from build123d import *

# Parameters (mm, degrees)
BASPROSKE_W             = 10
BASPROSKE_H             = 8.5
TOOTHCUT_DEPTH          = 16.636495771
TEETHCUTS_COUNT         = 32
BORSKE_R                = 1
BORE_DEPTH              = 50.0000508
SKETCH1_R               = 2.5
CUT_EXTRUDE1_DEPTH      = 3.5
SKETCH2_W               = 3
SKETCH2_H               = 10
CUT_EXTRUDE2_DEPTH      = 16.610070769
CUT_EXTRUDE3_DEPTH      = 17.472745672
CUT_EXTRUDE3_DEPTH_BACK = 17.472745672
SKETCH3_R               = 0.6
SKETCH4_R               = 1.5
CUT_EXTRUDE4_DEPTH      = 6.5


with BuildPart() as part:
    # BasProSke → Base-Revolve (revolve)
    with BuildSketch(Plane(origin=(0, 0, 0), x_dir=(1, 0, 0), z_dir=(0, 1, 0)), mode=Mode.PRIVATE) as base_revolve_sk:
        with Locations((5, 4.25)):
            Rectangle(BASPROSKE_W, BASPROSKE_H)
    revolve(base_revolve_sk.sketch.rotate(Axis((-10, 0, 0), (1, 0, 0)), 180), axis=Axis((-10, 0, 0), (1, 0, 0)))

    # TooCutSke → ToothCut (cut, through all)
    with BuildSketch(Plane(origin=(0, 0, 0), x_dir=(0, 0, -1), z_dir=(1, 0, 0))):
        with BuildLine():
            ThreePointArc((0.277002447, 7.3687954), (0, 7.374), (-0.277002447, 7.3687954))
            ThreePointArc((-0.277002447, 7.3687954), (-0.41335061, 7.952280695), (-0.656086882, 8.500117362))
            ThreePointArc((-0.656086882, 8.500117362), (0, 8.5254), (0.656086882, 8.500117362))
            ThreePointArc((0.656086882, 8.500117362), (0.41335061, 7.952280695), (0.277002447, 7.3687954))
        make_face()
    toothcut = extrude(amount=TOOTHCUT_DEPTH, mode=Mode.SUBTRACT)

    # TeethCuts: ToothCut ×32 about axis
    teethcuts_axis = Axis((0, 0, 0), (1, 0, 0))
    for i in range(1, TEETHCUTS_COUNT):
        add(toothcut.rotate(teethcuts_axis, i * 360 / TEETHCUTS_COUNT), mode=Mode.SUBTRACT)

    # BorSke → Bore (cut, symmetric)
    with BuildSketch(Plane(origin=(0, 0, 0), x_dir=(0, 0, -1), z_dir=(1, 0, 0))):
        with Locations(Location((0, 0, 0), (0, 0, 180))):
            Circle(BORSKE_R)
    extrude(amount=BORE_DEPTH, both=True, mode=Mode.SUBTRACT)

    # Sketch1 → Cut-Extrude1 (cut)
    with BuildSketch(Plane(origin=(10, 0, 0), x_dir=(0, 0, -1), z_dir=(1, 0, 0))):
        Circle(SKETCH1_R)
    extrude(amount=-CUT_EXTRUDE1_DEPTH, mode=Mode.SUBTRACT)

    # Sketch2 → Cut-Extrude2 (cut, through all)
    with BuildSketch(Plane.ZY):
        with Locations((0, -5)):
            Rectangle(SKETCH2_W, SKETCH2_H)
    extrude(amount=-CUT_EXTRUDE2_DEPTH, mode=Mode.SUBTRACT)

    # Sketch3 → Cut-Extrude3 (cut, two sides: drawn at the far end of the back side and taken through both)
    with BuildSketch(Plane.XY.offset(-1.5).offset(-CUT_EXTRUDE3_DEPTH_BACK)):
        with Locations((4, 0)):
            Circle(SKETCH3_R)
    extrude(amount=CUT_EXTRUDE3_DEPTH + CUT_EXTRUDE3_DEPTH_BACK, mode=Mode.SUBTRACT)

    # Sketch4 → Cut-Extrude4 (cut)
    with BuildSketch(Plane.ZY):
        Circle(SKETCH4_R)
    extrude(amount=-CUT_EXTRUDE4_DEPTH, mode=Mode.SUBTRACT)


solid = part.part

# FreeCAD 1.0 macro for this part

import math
import FreeCAD as App
import Part
import Sketcher

V = App.Vector

doc = App.newDocument("Part")
body = doc.addObject("PartDesign::Body", "Body")

sketch1 = doc.addObject("Sketcher::SketchObject", "Sketch")
body.addObject(sketch1)
sketch1.AttachmentSupport = (doc.XZ_Plane, [""])
sketch1.MapMode = "FlatFace"
sketch1.addGeometry([
    Part.LineSegment(V(0, -8, 0), V(0, 0, 0)),
    Part.LineSegment(V(0, 0, 0), V(10, 0, 0)),
    Part.LineSegment(V(10, 0, 0), V(10, -8, 0)),
    Part.LineSegment(V(10, -8, 0), V(0, -8, 0)),
], False)
sketch1.addConstraint([
    Sketcher.Constraint("Coincident", 0, 2, 1, 1),
    Sketcher.Constraint("Coincident", 1, 2, 2, 1),
    Sketcher.Constraint("Coincident", 2, 2, 3, 1),
    Sketcher.Constraint("Coincident", 3, 2, 0, 1),
    Sketcher.Constraint("Vertical", 0),
    Sketcher.Constraint("Horizontal", 1),
    Sketcher.Constraint("Vertical", 2),
    Sketcher.Constraint("Horizontal", 3),
    Sketcher.Constraint("Coincident", 0, 2, -1, 1),
    Sketcher.Constraint("DistanceX", 1, 1, 1, 2, 10.0),
    Sketcher.Constraint("DistanceY", 0, 1, 0, 2, 8.5),
])
revolution = doc.addObject("PartDesign::Revolution", "Revolution")
body.addObject(revolution)
revolution.Profile = sketch1
revolution.ReferenceAxis = (sketch1, ["H_Axis"])
revolution.Angle = 360

sketch2 = doc.addObject("Sketcher::SketchObject", "Sketch001")
body.addObject(sketch2)
sketch2.AttachmentSupport = (doc.YZ_Plane, [""])
sketch2.MapMode = "FlatFace"
sketch2.addGeometry([
    Part.ArcOfCircle(Part.Circle(V(0, 0, 0), V(0, 0, 1), 7.4), math.radians(-2.15), math.radians(2.15)),
    Part.ArcOfCircle(Part.Circle(V(6.9, -3.4, 0), V(0, 0, 1), 3.2), math.radians(61), math.radians(82)),
    Part.ArcOfCircle(Part.Circle(V(0, 0, 0), V(0, 0, 1), 8.5), math.radians(-4.41), math.radians(4.41)),
    Part.ArcOfCircle(Part.Circle(V(6.9, 3.4, 0), V(0, 0, 1), 3.2), math.radians(-82), math.radians(-61)),
], False)
sketch2.addConstraint([
    Sketcher.Constraint("Coincident", 0, 1, 1, 2),
    Sketcher.Constraint("Coincident", 1, 1, 2, 1),
    Sketcher.Constraint("Coincident", 2, 2, 3, 2),
    Sketcher.Constraint("Coincident", 3, 1, 0, 2),
    Sketcher.Constraint("Coincident", 0, 3, -1, 1),
    Sketcher.Constraint("Coincident", 2, 3, -1, 1),
    Sketcher.Constraint("Equal", 1, 3),
    Sketcher.Constraint("Symmetric", 1, 3, 3, 3, -1),
    Sketcher.Constraint("Radius", 1, 3.2),
    Sketcher.Constraint("Radius", 0, 7.374),
    Sketcher.Constraint("Radius", 2, 8.5254),
    Sketcher.Constraint("DistanceX", -1, 1, 1, 3, 6.935581),
    Sketcher.Constraint("DistanceX", 0, 1, 1, 1, 1.131322),
])
pocket1 = doc.addObject("PartDesign::Pocket", "Pocket")
body.addObject(pocket1)
pocket1.Profile = sketch2
pocket1.Type = "ThroughAll"
pocket1.Reversed = True
doc.recompute()

polarpattern = doc.addObject("PartDesign::PolarPattern", "PolarPattern")
body.addObject(polarpattern)
polarpattern.Originals = [pocket1]
polarpattern.Axis = (doc.X_Axis, [""])
polarpattern.Angle = 360
polarpattern.Occurrences = 32
body.Tip = polarpattern

sketch3 = doc.addObject("Sketcher::SketchObject", "Sketch002")
body.addObject(sketch3)
sketch3.AttachmentSupport = (doc.YZ_Plane, [""])
sketch3.MapMode = "FlatFace"
sketch3.addGeometry(Part.Circle(V(0, 0, 0), V(0, 0, 1), 1), False)
sketch3.addConstraint([
    Sketcher.Constraint("Coincident", 0, 3, -1, 1),
    Sketcher.Constraint("Diameter", 0, 2.0),
])
pocket2 = doc.addObject("PartDesign::Pocket", "Pocket001")
body.addObject(pocket2)
pocket2.Profile = sketch3
pocket2.Length = 100.000102
pocket2.Midplane = True

sketch4 = doc.addObject("Sketcher::SketchObject", "Sketch003")
body.addObject(sketch4)
sketch4.AttachmentSupport = (doc.YZ_Plane, [""])
sketch4.MapMode = "FlatFace"
sketch4.AttachmentOffset = App.Placement(V(0, 0, 10), App.Rotation())
sketch4.addGeometry(Part.Circle(V(0, 0, 0), V(0, 0, 1), 2.5), False)
sketch4.addConstraint([
    Sketcher.Constraint("Coincident", 0, 3, -1, 1),
    Sketcher.Constraint("Diameter", 0, 5.0),
])
pocket3 = doc.addObject("PartDesign::Pocket", "Pocket002")
body.addObject(pocket3)
pocket3.Profile = sketch4
pocket3.Length = 3.5

sketch5 = doc.addObject("Sketcher::SketchObject", "Sketch004")
body.addObject(sketch5)
sketch5.AttachmentSupport = (doc.YZ_Plane, [""])
sketch5.MapMode = "FlatFace"
sketch5.addGeometry([
    Part.LineSegment(V(0, -1.5, 0), V(-10, -1.5, 0)),
    Part.LineSegment(V(-10, -1.5, 0), V(-10, 1.5, 0)),
    Part.LineSegment(V(-10, 1.5, 0), V(0, 1.5, 0)),
    Part.LineSegment(V(0, 1.5, 0), V(0, -1.5, 0)),
], False)
sketch5.addConstraint([
    Sketcher.Constraint("Coincident", 0, 2, 1, 1),
    Sketcher.Constraint("Coincident", 1, 2, 2, 1),
    Sketcher.Constraint("Coincident", 2, 2, 3, 1),
    Sketcher.Constraint("Coincident", 3, 2, 0, 1),
    Sketcher.Constraint("Horizontal", 0),
    Sketcher.Constraint("Vertical", 1),
    Sketcher.Constraint("Horizontal", 2),
    Sketcher.Constraint("Vertical", 3),
    Sketcher.Constraint("Symmetric", 2, 2, 3, 2, -1, 1),
    Sketcher.Constraint("DistanceX", 0, 2, 0, 1, 10.0),
    Sketcher.Constraint("DistanceY", 1, 1, 1, 2, 3.0),
])
pocket4 = doc.addObject("PartDesign::Pocket", "Pocket003")
body.addObject(pocket4)
pocket4.Profile = sketch5
pocket4.Type = "ThroughAll"
pocket4.Reversed = True

sketch6 = doc.addObject("Sketcher::SketchObject", "Sketch005")
body.addObject(sketch6)
sketch6.AttachmentSupport = (doc.XY_Plane, [""])
sketch6.MapMode = "FlatFace"
sketch6.AttachmentOffset = App.Placement(V(0, 0, -1.5), App.Rotation())
sketch6.addGeometry(Part.Circle(V(4, 0, 0), V(0, 0, 1), 0.6), False)
sketch6.addConstraint([
    Sketcher.Constraint("PointOnObject", 0, 3, -1),
    Sketcher.Constraint("Diameter", 0, 1.2),
    Sketcher.Constraint("DistanceX", -1, 1, 0, 3, 4.0),
])
pocket5 = doc.addObject("PartDesign::Pocket", "Pocket004")
body.addObject(pocket5)
pocket5.Profile = sketch6
pocket5.Type = "ThroughAll"
pocket5.Midplane = True

sketch7 = doc.addObject("Sketcher::SketchObject", "Sketch006")
body.addObject(sketch7)
sketch7.AttachmentSupport = (doc.YZ_Plane, [""])
sketch7.MapMode = "FlatFace"
sketch7.addGeometry(Part.Circle(V(0, 0, 0), V(0, 0, 1), 1.5), False)
sketch7.addConstraint([
    Sketcher.Constraint("Coincident", 0, 3, -1, 1),
    Sketcher.Constraint("Diameter", 0, 3.0),
])
pocket6 = doc.addObject("PartDesign::Pocket", "Pocket005")
body.addObject(pocket6)
pocket6.Profile = sketch7
pocket6.Length = 6.5
pocket6.Reversed = True

doc.recompute()
